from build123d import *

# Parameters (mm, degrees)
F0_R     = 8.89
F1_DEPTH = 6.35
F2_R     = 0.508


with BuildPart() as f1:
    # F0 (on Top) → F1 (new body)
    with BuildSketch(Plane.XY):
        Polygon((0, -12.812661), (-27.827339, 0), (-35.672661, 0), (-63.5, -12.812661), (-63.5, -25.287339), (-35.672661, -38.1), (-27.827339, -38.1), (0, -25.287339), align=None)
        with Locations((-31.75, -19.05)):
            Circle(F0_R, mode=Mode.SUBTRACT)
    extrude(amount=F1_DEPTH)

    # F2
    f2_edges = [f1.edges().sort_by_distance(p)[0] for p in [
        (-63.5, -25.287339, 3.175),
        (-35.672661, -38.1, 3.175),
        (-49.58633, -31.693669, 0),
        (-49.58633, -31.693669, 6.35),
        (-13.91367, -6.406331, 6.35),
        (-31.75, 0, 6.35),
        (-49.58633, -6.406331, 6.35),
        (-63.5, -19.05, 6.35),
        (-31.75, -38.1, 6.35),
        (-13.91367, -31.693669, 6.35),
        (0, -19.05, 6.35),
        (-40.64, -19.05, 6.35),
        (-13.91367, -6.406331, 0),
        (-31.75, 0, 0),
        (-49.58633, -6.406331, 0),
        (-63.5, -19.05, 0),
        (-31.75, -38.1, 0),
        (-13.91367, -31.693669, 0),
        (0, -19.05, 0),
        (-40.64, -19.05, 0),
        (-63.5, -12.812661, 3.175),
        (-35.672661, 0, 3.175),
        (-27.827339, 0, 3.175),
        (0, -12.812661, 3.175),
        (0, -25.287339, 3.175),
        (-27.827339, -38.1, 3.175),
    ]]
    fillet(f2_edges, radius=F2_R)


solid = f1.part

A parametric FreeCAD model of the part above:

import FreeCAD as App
import Part
import Sketcher
Q = App.Units.Quantity


def add_polygon(sketch, points):
    """Adds a closed chain of lines whose ends are joined by coincident constraints."""
    first, n = sketch.GeometryCount, len(points)
    for a, b in zip(points, points[1:] + points[:1]):
        sketch.addGeometry(Part.LineSegment(App.Vector(*a, 0), App.Vector(*b, 0)), False)
    for i in range(n):
        sketch.addConstraint(Sketcher.Constraint("Coincident", first + i, 2, first + (i + 1) % n, 1))

doc = App.newDocument("Part")
body = doc.addObject("PartDesign::Body", "Body")

# Sketch on XY plane
sketch1 = body.newObject("Sketcher::SketchObject", "Sketch")
sketch1.AttachmentSupport = (doc.getObject("XY_Plane"), [""])
sketch1.MapMode = "FlatFace"
add_polygon(sketch1, [(0, -13), (-28, 0), (-36, 0), (-64, -13), (-64, -25), (-36, -38), (-28, -38), (0, -25)])  # lines 0-7
sketch1.addGeometry(Part.Circle(App.Vector(-32, -19, 0), App.Vector(0, 0, 1), 9), False)  # 8
sketch1.addConstraint([
    Sketcher.Constraint("Horizontal", 1),
    Sketcher.Constraint("Vertical", 3),
    Sketcher.Constraint("Horizontal", 5),
    Sketcher.Constraint("Vertical", 7),
    Sketcher.Constraint("PointOnObject", 0, 2, -1),
    Sketcher.Constraint("PointOnObject", 6, 2, -2),
    Sketcher.Constraint("Parallel", 0, 4),
    Sketcher.Constraint("Parallel", 2, 6),
    Sketcher.Constraint("Horizontal", 3, 2, 6, 2),
    Sketcher.Constraint("Horizontal", 2, 2, 7, 2),
    Sketcher.Constraint("Vertical", 1, 2, 4, 2),
    Sketcher.Constraint("Vertical", 0, 2, 5, 2),
    Sketcher.Constraint("Diameter", 8, Q("0.7 in")),
    Sketcher.Constraint("DistanceX", 2, 2, -1, 1, Q("2.5 in")),
    Sketcher.Constraint("DistanceY", 4, 2, -1, 1, Q("1.5 in")),
    Sketcher.Constraint("DistanceX", 8, 3, -1, 1, Q("1.25 in")),
    Sketcher.Constraint("DistanceY", 8, 3, -1, 1, Q("0.75 in")),
    Sketcher.Constraint("DistanceX", 1, 2, 1, 1, Q("7.845322 mm")),
    Sketcher.Constraint("DistanceY", 3, 2, 3, 1, Q("12.474678 mm")),
])
pad1 = body.newObject("PartDesign::Pad", "Pad")
pad1.Profile = sketch1
pad1.Length = Q("0.25 in")
doc.recompute()

fillet = body.newObject("PartDesign::Fillet", "Fillet")
fillet.Base = (pad1, ["Edge1"])
fillet.UseAllEdges = True
fillet.Radius = Q("0.02 in")

doc.recompute()
